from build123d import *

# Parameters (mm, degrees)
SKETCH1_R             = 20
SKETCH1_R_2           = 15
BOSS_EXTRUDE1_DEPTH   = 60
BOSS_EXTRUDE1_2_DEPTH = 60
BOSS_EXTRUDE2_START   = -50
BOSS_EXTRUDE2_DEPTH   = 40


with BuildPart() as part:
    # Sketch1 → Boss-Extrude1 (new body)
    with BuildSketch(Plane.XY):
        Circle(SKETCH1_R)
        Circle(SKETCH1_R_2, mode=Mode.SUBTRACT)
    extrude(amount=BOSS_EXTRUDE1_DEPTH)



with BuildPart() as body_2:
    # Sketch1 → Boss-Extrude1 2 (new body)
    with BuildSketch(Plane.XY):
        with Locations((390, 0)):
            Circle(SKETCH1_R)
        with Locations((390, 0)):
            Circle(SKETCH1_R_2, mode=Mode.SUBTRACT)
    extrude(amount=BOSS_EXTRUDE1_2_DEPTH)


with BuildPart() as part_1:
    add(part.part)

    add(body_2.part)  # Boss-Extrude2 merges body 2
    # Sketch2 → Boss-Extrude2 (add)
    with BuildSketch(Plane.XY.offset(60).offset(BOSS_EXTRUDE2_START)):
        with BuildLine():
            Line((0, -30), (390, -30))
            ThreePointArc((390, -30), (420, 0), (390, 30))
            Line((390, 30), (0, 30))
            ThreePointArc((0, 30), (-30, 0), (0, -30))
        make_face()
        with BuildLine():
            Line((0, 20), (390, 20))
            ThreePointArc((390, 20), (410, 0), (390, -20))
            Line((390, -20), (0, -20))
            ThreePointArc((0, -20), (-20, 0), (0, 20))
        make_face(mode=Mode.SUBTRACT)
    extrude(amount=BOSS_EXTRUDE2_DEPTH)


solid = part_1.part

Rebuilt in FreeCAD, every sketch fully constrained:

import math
import FreeCAD as App
import Part
import Sketcher

V = App.Vector

doc = App.newDocument("Part")
body = doc.addObject("PartDesign::Body", "Body")

sketch1 = body.newObject("Sketcher::SketchObject", "Sketch")
sketch1.AttachmentSupport = (doc.getObject("XY_Plane"), [""])
sketch1.MapMode = "FlatFace"
sketch1.addGeometry(Part.Circle(V(0, 0, 0), V(0, 0, 1), 20), False)
sketch1.addGeometry(Part.Circle(V(0, 0, 0), V(0, 0, 1), 15), False)
sketch1.addConstraint(Sketcher.Constraint("Coincident", 0, 3, -1, 1))
sketch1.addConstraint(Sketcher.Constraint("Coincident", 1, 3, -1, 1))
sketch1.addConstraint(Sketcher.Constraint("Diameter", 0, 40.0))
sketch1.addConstraint(Sketcher.Constraint("Diameter", 1, 30.0))
pad1 = body.newObject("PartDesign::Pad", "Pad")
pad1.Profile = sketch1
pad1.Length = 60
body2 = doc.addObject("PartDesign::Body", "Body001")

sketch2 = body2.newObject("Sketcher::SketchObject", "Sketch001")
sketch2.AttachmentSupport = (doc.getObject("XY_Plane001"), [""])
sketch2.MapMode = "FlatFace"
sketch2.addGeometry(Part.Circle(V(390, 0, 0), V(0, 0, 1), 20), False)
sketch2.addGeometry(Part.Circle(V(390, 0, 0), V(0, 0, 1), 15), False)
sketch2.addConstraint(Sketcher.Constraint("Coincident", 1, 3, 0, 3))
sketch2.addConstraint(Sketcher.Constraint("PointOnObject", 0, 3, -1))
sketch2.addConstraint(Sketcher.Constraint("Diameter", 0, 40.0))
sketch2.addConstraint(Sketcher.Constraint("Diameter", 1, 30.0))
sketch2.addConstraint(Sketcher.Constraint("DistanceX", -1, 1, 0, 3, 390.0))
pad2 = body2.newObject("PartDesign::Pad", "Pad001")
pad2.Profile = sketch2
pad2.Length = 60
body.AllowCompound = True
doc.recompute()

boolean = body.newObject("PartDesign::Boolean", "Boolean")
boolean.Type = "Fuse"
boolean.addObjects([body2])

sketch3 = body.newObject("Sketcher::SketchObject", "Sketch002")
sketch3.AttachmentSupport = (doc.getObject("XY_Plane"), [""])
sketch3.MapMode = "FlatFace"
sketch3.AttachmentOffset = App.Placement(V(0, 0, 10), App.Rotation())
sketch3.addGeometry(Part.LineSegment(V(0, -30, 0), V(390, -30, 0)), False)
sketch3.addGeometry(Part.ArcOfCircle(Part.Circle(V(390, 0, 0), V(0, 0, 1), 30), math.radians(-90), math.radians(90)), False)
sketch3.addGeometry(Part.LineSegment(V(390, 30, 0), V(0, 30, 0)), False)
sketch3.addGeometry(Part.ArcOfCircle(Part.Circle(V(0, 0, 0), V(0, 0, 1), 30), math.radians(90), math.radians(270)), False)
sketch3.addGeometry(Part.ArcOfCircle(Part.Circle(V(0, 0, 0), V(0, 0, 1), 20), math.radians(90), math.radians(270)), False)
sketch3.addGeometry(Part.LineSegment(V(0, 20, 0), V(390, 20, 0)), False)
sketch3.addGeometry(Part.ArcOfCircle(Part.Circle(V(390, 0, 0), V(0, 0, 1), 20), math.radians(-90), math.radians(90)), False)
sketch3.addGeometry(Part.LineSegment(V(390, -20, 0), V(0, -20, 0)), False)
sketch3.addConstraint(Sketcher.Constraint("Tangent", 0, 2, 1, 1))
sketch3.addConstraint(Sketcher.Constraint("Tangent", 1, 2, 2, 1))
sketch3.addConstraint(Sketcher.Constraint("Tangent", 2, 2, 3, 1))
sketch3.addConstraint(Sketcher.Constraint("Tangent", 3, 2, 0, 1))
sketch3.addConstraint(Sketcher.Constraint("Tangent", 4, 1, 5, 1))
sketch3.addConstraint(Sketcher.Constraint("Tangent", 5, 2, 6, 2))
sketch3.addConstraint(Sketcher.Constraint("Tangent", 6, 1, 7, 1))
sketch3.addConstraint(Sketcher.Constraint("Tangent", 7, 2, 4, 2))
sketch3.addConstraint(Sketcher.Constraint("Horizontal", 0))
sketch3.addConstraint(Sketcher.Constraint("Horizontal", 2))
sketch3.addConstraint(Sketcher.Constraint("Horizontal", 5))
sketch3.addConstraint(Sketcher.Constraint("Horizontal", 7))
sketch3.addConstraint(Sketcher.Constraint("Coincident", 3, 3, -1, 1))
sketch3.addConstraint(Sketcher.Constraint("Coincident", 4, 3, -1, 1))
sketch3.addConstraint(Sketcher.Constraint("Vertical", 6, 3, 0, 2))
sketch3.addConstraint(Sketcher.Constraint("Radius", 1, 30.0))
sketch3.addConstraint(Sketcher.Constraint("Radius", 4, 20.0))
sketch3.addConstraint(Sketcher.Constraint("DistanceX", 0, 1, 0, 2, 390.0))
pad3 = body.newObject("PartDesign::Pad", "Pad002")
pad3.Profile = sketch3
pad3.Length = 40

doc.recompute()
